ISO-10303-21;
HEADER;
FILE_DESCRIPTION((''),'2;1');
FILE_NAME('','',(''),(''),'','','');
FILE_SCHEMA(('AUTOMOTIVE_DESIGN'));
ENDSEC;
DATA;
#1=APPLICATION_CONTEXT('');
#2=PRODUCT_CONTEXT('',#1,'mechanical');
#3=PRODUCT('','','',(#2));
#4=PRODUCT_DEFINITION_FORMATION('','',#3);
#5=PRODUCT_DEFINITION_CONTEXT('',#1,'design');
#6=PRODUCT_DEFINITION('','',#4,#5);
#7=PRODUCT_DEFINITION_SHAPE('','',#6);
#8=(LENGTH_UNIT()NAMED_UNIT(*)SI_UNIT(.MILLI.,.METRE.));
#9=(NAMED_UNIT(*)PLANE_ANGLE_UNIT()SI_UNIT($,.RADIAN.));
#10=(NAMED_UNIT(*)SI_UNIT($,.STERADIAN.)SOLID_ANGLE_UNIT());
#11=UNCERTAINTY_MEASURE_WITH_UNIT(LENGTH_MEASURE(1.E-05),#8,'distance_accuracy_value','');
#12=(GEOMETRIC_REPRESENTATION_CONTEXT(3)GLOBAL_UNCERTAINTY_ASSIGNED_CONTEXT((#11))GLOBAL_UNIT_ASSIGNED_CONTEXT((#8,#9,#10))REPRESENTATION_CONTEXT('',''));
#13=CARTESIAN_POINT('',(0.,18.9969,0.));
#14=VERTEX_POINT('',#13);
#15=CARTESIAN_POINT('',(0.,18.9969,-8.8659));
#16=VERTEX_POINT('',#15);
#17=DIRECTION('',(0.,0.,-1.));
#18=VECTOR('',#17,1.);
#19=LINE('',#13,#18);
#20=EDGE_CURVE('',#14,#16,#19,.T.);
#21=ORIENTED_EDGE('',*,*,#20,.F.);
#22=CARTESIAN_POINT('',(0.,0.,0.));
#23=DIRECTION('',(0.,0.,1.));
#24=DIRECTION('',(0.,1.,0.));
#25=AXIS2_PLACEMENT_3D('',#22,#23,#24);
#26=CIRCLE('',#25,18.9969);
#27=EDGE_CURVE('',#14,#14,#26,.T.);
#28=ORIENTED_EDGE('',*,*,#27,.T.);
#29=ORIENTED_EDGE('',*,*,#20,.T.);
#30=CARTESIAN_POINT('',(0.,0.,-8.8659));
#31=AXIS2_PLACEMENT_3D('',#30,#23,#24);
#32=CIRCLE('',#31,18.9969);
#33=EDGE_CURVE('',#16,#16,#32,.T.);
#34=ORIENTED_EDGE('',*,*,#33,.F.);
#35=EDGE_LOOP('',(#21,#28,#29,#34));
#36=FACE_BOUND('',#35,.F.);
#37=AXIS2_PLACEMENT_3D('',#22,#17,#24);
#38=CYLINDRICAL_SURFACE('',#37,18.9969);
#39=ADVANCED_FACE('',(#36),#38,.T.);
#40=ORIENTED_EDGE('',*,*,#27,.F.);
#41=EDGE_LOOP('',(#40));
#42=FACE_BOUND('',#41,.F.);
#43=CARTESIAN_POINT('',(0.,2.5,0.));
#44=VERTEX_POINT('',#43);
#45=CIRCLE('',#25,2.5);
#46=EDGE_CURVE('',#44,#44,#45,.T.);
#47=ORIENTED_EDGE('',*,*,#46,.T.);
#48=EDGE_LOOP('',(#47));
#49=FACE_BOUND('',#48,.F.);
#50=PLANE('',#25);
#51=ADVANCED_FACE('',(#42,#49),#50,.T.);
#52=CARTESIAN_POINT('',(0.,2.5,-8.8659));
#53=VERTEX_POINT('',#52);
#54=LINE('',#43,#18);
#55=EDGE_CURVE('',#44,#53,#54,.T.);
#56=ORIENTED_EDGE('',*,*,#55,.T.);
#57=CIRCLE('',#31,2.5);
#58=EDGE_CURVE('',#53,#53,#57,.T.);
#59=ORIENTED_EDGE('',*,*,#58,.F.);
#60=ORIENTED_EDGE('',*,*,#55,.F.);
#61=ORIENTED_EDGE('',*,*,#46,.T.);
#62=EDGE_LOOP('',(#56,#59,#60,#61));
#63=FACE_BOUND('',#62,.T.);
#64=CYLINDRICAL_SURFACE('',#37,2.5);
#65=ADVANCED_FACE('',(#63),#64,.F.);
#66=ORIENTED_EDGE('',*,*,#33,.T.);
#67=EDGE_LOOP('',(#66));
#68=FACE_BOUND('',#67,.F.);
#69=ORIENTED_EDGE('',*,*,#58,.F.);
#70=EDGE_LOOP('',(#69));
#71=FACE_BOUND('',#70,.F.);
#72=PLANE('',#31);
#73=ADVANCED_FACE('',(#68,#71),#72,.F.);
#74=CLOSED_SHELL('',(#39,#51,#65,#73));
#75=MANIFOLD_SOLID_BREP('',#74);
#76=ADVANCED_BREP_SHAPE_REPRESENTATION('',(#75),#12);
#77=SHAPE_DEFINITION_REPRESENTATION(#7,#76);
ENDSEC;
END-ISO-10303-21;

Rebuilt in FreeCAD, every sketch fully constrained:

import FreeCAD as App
import Part
import Sketcher

V = App.Vector
Q = App.Units.Quantity


def add_polygon(sketch, points):
    """Adds a closed chain of lines whose ends are joined by coincident constraints."""
    first, n = sketch.GeometryCount, len(points)
    for a, b in zip(points, points[1:] + points[:1]):
        sketch.addGeometry(Part.LineSegment(App.Vector(*a, 0), App.Vector(*b, 0)), False)
    for i in range(n):
        sketch.addConstraint(Sketcher.Constraint("Coincident", first + i, 2, first + (i + 1) % n, 1))

doc = App.newDocument("Part")
params = doc.addObject("Spreadsheet::Sheet", "Params")
for row, (alias, value) in enumerate([
    ("revolution_angle", "360 deg"),
], start=1):
    params.set(f"A{row}", alias)
    params.set(f"B{row}", "=" + value)
    params.setAlias(f"B{row}", alias)

body = doc.addObject("PartDesign::Body", "Body")

# Sketch on YZ plane
sketch1 = doc.addObject("Sketcher::SketchObject", "Sketch")
body.addObject(sketch1)
sketch1.AttachmentSupport = (doc.YZ_Plane, [""])
sketch1.MapMode = "FlatFace"
add_polygon(sketch1, [(19, 0), (2, 0), (2, -9), (19, -9)])  # lines 0-3
sketch1.addConstraint([
    Sketcher.Constraint("Horizontal", 0),
    Sketcher.Constraint("Vertical", 1),
    Sketcher.Constraint("Horizontal", 2),
    Sketcher.Constraint("Vertical", 3),
    Sketcher.Constraint("PointOnObject", 0, 2, -1),
    Sketcher.Constraint("DistanceX", -1, 1, 0, 2, Q("2.5 mm")),
    Sketcher.Constraint("DistanceX", 0, 2, 0, 1, Q("16.497 mm")),
    Sketcher.Constraint("DistanceY", 1, 2, 1, 1, Q("8.866 mm")),
])
revolution = doc.addObject("PartDesign::Revolution", "Revolution")
body.addObject(revolution)
revolution.Profile = sketch1
revolution.ReferenceAxis = (sketch1, ["V_Axis"])
revolution.setExpression("Angle", "Params.revolution_angle")

doc.recompute()
